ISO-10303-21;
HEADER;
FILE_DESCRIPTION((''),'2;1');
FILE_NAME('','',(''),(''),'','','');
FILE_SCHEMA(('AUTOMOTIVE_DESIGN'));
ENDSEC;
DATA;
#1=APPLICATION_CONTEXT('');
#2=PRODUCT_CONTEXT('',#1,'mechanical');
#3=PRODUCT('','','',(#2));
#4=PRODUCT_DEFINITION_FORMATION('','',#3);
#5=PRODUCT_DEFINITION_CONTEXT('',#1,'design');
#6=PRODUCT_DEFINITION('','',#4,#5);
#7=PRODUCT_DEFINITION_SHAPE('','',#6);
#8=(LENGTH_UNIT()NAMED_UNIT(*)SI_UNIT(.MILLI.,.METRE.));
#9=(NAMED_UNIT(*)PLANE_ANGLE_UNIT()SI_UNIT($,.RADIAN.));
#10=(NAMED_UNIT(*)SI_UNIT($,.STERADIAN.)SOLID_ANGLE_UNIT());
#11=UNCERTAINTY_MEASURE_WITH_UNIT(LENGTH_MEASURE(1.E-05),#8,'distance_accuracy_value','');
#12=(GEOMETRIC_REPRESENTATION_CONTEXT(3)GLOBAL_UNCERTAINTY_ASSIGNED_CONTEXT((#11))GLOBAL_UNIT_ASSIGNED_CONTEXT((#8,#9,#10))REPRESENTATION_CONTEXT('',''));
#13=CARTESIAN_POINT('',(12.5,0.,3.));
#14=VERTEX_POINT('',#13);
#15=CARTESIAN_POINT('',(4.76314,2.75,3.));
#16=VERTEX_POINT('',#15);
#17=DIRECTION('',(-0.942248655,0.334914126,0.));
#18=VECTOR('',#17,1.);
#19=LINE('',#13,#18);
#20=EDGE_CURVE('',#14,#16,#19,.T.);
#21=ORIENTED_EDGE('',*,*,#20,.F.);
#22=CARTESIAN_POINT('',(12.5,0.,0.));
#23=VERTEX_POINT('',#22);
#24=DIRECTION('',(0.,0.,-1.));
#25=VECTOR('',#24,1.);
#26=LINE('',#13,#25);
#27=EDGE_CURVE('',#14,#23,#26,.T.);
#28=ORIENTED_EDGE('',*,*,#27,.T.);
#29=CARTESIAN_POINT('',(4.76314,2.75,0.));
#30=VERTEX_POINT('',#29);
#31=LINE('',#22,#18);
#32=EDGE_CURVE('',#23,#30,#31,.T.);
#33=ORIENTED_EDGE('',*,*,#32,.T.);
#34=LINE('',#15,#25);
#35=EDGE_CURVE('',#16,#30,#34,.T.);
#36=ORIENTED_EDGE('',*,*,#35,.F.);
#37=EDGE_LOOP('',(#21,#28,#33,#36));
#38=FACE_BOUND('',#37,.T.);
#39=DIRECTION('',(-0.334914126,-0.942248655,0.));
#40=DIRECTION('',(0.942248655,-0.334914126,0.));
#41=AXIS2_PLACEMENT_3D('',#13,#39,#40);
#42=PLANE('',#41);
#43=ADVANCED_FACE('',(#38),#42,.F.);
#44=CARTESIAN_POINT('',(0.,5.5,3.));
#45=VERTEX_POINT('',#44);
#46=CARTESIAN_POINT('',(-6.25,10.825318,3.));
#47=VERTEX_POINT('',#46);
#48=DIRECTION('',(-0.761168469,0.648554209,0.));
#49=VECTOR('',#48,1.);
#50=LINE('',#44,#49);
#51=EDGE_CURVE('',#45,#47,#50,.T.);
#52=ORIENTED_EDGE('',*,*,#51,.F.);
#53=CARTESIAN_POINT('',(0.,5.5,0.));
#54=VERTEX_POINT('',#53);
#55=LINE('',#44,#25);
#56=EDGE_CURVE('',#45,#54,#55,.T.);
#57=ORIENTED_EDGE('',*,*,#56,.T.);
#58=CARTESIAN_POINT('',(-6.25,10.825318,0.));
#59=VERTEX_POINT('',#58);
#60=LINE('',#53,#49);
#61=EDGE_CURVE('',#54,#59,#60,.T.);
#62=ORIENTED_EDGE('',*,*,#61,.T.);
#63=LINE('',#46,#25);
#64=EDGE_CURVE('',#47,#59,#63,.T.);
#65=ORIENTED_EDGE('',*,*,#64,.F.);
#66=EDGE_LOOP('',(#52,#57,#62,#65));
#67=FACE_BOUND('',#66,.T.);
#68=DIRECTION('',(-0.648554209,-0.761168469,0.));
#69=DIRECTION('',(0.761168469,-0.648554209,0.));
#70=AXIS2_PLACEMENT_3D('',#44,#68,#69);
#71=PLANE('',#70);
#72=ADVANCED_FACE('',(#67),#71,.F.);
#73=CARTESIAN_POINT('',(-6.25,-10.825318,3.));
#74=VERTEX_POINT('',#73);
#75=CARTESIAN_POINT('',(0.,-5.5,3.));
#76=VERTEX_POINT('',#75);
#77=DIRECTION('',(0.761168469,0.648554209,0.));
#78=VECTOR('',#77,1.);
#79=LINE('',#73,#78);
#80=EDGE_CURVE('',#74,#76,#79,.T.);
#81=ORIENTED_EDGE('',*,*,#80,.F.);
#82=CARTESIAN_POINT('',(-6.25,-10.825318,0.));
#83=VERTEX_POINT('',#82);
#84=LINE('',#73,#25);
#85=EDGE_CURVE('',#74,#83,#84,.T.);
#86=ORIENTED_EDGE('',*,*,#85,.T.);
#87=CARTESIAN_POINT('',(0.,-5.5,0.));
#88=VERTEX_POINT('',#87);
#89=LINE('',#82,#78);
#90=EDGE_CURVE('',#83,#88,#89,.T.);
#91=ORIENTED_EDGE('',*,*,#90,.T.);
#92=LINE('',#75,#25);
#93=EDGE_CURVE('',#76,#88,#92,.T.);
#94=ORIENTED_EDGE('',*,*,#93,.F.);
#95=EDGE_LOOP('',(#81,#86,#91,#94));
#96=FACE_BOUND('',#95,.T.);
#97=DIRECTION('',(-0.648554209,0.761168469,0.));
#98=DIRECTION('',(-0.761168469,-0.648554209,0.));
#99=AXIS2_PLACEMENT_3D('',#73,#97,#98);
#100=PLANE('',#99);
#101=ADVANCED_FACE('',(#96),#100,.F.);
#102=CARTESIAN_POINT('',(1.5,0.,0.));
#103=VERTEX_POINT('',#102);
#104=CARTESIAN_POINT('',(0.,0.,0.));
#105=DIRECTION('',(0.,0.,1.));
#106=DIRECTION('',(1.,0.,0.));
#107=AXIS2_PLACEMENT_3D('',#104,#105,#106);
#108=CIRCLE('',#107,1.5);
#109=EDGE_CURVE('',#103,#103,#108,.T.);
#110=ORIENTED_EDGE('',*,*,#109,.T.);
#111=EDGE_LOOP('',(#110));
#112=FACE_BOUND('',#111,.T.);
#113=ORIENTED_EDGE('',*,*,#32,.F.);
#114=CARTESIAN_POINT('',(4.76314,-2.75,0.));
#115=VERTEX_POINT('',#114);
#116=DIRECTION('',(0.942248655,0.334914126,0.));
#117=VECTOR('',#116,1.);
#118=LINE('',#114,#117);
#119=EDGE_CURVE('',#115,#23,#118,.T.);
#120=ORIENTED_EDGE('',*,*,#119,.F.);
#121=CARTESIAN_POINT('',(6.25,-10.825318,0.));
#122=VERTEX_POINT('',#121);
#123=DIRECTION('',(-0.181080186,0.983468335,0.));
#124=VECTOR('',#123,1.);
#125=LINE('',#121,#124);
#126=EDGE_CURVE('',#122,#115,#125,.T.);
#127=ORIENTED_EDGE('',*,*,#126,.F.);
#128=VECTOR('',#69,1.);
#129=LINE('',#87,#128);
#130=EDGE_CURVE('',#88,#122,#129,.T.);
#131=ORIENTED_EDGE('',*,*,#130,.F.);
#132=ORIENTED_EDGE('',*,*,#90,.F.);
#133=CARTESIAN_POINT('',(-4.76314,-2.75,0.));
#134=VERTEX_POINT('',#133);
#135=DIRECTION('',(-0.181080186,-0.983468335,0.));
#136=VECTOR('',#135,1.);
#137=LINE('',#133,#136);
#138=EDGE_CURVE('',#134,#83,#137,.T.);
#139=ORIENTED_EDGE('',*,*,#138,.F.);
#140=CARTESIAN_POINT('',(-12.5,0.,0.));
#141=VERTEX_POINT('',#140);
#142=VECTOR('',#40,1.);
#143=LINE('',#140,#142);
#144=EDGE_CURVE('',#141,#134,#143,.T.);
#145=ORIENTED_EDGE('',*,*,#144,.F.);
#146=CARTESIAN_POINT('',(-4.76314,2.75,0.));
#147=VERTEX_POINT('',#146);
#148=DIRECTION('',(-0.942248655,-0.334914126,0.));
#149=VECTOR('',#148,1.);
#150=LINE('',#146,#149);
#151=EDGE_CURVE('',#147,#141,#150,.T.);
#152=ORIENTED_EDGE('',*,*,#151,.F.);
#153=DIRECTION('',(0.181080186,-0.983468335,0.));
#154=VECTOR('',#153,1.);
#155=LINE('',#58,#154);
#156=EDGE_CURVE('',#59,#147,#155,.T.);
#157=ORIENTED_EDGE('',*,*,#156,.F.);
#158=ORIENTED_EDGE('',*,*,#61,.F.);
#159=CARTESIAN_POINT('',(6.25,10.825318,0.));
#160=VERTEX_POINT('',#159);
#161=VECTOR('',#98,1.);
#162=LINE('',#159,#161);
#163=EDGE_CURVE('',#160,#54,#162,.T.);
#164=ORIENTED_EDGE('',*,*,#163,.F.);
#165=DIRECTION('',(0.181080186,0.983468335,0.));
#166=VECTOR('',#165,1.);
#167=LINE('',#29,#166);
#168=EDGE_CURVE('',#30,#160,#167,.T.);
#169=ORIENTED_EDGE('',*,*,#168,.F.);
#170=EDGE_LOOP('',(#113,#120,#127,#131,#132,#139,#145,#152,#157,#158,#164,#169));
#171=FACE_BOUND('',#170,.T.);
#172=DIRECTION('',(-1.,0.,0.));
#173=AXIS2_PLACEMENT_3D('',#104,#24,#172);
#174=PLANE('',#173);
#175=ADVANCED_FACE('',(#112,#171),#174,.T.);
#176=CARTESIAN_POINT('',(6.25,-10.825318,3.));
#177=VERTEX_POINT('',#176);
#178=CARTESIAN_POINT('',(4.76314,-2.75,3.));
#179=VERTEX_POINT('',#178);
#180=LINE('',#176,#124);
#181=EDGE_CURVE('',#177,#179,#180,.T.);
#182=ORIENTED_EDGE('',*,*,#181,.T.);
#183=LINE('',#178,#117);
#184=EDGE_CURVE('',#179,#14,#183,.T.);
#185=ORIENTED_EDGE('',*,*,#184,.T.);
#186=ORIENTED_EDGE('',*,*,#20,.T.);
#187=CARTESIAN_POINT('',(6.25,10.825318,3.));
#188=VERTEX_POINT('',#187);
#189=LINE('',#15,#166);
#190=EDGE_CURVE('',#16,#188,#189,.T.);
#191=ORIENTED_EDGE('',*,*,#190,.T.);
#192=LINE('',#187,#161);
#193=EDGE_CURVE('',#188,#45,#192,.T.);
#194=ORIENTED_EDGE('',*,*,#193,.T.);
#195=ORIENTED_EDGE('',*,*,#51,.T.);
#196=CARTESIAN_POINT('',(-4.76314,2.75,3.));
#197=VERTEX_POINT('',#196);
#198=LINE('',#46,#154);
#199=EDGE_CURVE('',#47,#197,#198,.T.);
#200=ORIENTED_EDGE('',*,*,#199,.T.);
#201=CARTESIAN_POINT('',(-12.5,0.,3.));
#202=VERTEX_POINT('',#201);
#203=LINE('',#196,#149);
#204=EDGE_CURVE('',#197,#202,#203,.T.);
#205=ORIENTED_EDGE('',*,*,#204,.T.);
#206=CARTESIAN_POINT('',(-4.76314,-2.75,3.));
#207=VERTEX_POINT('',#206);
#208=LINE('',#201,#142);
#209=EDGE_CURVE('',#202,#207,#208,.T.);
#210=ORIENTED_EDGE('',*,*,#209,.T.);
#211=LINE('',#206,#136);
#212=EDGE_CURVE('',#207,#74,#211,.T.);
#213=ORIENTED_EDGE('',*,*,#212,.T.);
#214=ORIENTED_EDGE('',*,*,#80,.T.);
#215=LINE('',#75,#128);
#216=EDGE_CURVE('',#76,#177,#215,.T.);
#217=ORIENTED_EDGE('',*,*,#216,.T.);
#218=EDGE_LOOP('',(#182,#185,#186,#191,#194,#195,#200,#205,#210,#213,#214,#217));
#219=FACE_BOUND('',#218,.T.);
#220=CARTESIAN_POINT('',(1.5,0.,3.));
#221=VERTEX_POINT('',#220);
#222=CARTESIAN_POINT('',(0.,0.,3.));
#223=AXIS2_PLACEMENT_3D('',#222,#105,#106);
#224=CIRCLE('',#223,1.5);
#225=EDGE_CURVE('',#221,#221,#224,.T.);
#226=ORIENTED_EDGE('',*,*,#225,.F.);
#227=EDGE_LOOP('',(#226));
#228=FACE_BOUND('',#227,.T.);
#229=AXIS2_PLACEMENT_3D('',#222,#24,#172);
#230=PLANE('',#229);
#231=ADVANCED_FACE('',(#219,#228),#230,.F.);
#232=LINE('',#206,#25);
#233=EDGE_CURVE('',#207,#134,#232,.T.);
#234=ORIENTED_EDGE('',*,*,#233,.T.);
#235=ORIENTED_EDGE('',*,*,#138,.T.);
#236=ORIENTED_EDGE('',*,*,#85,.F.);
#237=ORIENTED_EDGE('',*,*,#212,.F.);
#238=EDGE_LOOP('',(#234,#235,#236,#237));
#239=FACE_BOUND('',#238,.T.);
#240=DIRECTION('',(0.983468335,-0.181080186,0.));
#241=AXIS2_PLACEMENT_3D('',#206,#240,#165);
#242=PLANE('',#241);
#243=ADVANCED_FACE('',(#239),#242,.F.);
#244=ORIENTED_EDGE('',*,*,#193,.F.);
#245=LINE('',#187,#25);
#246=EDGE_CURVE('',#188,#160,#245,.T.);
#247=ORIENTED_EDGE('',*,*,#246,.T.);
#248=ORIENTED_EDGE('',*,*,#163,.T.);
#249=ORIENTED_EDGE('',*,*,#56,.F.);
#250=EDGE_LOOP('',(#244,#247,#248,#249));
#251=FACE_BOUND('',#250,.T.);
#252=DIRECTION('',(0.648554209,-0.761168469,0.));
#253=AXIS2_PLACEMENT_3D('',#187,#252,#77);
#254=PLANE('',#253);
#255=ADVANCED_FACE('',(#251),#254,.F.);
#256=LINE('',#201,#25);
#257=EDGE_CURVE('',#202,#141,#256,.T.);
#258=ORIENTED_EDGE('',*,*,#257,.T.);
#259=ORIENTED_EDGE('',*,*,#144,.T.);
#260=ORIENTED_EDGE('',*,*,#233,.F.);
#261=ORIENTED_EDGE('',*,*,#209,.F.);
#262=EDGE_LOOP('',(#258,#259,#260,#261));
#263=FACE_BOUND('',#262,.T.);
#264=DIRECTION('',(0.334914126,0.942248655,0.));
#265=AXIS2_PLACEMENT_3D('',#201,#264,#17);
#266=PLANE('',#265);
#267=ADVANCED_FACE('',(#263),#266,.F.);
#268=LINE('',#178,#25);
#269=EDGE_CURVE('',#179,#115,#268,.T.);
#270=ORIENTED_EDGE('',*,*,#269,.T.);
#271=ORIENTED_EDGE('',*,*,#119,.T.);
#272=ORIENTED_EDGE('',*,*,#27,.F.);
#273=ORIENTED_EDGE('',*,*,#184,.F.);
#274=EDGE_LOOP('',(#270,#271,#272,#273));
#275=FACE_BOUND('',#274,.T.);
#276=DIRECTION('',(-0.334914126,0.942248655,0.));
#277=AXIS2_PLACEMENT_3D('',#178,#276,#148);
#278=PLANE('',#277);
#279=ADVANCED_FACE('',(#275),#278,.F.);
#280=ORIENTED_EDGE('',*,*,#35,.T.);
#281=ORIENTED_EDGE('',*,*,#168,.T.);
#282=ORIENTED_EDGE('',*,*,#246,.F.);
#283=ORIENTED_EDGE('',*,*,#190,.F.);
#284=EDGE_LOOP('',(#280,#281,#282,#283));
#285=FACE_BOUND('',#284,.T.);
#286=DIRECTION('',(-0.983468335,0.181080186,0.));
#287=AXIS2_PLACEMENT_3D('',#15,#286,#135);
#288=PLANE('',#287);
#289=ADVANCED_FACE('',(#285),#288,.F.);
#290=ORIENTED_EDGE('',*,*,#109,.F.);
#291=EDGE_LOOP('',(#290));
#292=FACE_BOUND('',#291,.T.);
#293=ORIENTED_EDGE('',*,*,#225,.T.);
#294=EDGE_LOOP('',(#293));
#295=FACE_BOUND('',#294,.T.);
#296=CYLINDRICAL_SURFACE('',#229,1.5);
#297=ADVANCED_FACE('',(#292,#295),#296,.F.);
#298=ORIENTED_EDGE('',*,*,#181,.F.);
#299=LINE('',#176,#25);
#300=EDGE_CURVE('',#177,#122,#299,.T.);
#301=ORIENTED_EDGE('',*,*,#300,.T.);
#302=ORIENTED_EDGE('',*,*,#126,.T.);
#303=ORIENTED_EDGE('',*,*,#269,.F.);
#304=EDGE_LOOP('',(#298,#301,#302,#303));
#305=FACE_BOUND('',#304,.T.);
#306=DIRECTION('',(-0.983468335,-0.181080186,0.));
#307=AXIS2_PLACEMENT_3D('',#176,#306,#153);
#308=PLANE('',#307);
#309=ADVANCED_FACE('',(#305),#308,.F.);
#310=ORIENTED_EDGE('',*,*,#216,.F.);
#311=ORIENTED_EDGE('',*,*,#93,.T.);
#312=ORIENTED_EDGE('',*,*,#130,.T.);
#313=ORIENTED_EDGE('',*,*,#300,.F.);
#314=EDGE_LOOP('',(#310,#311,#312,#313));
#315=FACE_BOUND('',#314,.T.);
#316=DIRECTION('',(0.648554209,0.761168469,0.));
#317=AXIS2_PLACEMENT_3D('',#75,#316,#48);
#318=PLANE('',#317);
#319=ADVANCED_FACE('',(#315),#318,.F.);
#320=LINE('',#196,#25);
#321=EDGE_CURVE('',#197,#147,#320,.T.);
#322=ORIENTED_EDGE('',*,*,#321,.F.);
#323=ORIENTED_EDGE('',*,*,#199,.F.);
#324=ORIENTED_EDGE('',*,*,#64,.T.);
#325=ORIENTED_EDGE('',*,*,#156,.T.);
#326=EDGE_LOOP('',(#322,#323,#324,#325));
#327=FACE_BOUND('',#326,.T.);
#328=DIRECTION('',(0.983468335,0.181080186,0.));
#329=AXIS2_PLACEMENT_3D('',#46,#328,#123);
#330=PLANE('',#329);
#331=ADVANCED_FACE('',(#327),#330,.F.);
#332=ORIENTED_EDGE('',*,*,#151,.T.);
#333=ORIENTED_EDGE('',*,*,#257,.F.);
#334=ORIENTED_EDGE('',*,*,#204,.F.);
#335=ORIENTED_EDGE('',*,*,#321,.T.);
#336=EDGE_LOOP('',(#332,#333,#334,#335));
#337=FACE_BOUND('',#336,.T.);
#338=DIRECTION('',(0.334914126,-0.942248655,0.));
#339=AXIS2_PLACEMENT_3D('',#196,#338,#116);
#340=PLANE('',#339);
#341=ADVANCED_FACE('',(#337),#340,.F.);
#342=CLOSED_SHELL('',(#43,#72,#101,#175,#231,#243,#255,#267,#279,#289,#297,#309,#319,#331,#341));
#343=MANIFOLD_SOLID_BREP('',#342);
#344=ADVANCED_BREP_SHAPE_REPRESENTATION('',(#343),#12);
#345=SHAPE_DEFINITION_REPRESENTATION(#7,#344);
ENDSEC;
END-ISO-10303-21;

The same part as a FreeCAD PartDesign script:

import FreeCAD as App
import Part
import Sketcher
from FreeCAD import Vector
Q = App.Units.Quantity


def add_polygon(sketch, points):
    """Adds a closed chain of lines whose ends are joined by coincident constraints."""
    first, n = sketch.GeometryCount, len(points)
    for a, b in zip(points, points[1:] + points[:1]):
        sketch.addGeometry(Part.LineSegment(App.Vector(*a, 0), App.Vector(*b, 0)), False)
    for i in range(n):
        sketch.addConstraint(Sketcher.Constraint("Coincident", first + i, 2, first + (i + 1) % n, 1))

doc = App.newDocument("Part")
params = doc.addObject("Spreadsheet::Sheet", "Params")
for row, (alias, value) in enumerate([
    ("sketch1_diameter", "3 mm"),
    ("pad1_length", "3 mm"),
], start=1):
    params.set(f"A{row}", alias)
    params.set(f"B{row}", "=" + value)
    params.setAlias(f"B{row}", alias)

body = doc.addObject("PartDesign::Body", "Body")

# Sketch on XY plane
sketch1 = doc.addObject("Sketcher::SketchObject", "Sketch")
body.addObject(sketch1)
sketch1.AttachmentSupport = (doc.XY_Plane, [""])
sketch1.MapMode = "FlatFace"
add_polygon(sketch1, [(12.5, 0), (4.76314, 2.75), (6.25, 10.825318), (0, 5.5), (-6.25, 10.825318), (-4.76314, 2.75), (-12.5, 0), (-4.76314, -2.75), (-6.25, -10.825318), (0, -5.5), (6.25, -10.825318), (4.76314, -2.75)])  # lines 0-11
sketch1.addGeometry(Part.Circle(Vector(0, 0, 0), Vector(0, 0, 1), 1.5), False)  # 12
sketch1.addConstraint(Sketcher.Constraint("Coincident", 12, 3, -1, 1))
sketch1.addConstraint(Sketcher.Constraint("Symmetric", 0, 2, 6, 2, -1, 1))
sketch1.addConstraint(Sketcher.Constraint("Symmetric", 1, 2, 7, 2, -1, 1))
sketch1.addConstraint(Sketcher.Constraint("Symmetric", 2, 2, 8, 2, -1, 1))
sketch1.addConstraint(Sketcher.Constraint("Symmetric", 3, 2, 9, 2, -1, 1))
sketch1.addConstraint(Sketcher.Constraint("Symmetric", 4, 2, 10, 2, -1, 1))
sketch1.addConstraint(Sketcher.Constraint("Symmetric", 5, 2, 11, 2, -1, 1))
sketch1.addConstraint(Sketcher.Constraint("Symmetric", 1, 2, 3, 2, -2))
sketch1.addConstraint(Sketcher.Constraint("Symmetric", 0, 2, 4, 2, -2))
sketch1.addConstraint(Sketcher.Constraint("PointOnObject", 2, 2, -2))
sketch1.addConstraint(Sketcher.Constraint("PointOnObject", 5, 2, -1))
sketch1.addConstraint(Sketcher.Constraint("Equal", 0, 1))
sketch1.addConstraint(Sketcher.Constraint("Equal", 1, 2))
sketch1.addConstraint(Sketcher.Constraint("Diameter", 12, Q("3 mm")))
sketch1.addConstraint(Sketcher.Constraint("DistanceY", -1, 1, 2, 2, Q("5.5 mm")))
sketch1.addConstraint(Sketcher.Constraint("DistanceX", 5, 2, -1, 1, Q("12.5 mm")))
sketch1.addConstraint(Sketcher.Constraint("DistanceX", 3, 2, 1, 2, Q("12.5 mm")))
sketch1.addConstraint(Sketcher.Constraint("DistanceY", 6, 2, 4, 2, Q("5.5 mm")))
sketch1.setExpression("Constraints[25]", "Params.sketch1_diameter")
pad1 = doc.addObject("PartDesign::Pad", "Pad")
body.addObject(pad1)
pad1.Profile = sketch1
pad1.setExpression("Length", "Params.pad1_length")

doc.recompute()
